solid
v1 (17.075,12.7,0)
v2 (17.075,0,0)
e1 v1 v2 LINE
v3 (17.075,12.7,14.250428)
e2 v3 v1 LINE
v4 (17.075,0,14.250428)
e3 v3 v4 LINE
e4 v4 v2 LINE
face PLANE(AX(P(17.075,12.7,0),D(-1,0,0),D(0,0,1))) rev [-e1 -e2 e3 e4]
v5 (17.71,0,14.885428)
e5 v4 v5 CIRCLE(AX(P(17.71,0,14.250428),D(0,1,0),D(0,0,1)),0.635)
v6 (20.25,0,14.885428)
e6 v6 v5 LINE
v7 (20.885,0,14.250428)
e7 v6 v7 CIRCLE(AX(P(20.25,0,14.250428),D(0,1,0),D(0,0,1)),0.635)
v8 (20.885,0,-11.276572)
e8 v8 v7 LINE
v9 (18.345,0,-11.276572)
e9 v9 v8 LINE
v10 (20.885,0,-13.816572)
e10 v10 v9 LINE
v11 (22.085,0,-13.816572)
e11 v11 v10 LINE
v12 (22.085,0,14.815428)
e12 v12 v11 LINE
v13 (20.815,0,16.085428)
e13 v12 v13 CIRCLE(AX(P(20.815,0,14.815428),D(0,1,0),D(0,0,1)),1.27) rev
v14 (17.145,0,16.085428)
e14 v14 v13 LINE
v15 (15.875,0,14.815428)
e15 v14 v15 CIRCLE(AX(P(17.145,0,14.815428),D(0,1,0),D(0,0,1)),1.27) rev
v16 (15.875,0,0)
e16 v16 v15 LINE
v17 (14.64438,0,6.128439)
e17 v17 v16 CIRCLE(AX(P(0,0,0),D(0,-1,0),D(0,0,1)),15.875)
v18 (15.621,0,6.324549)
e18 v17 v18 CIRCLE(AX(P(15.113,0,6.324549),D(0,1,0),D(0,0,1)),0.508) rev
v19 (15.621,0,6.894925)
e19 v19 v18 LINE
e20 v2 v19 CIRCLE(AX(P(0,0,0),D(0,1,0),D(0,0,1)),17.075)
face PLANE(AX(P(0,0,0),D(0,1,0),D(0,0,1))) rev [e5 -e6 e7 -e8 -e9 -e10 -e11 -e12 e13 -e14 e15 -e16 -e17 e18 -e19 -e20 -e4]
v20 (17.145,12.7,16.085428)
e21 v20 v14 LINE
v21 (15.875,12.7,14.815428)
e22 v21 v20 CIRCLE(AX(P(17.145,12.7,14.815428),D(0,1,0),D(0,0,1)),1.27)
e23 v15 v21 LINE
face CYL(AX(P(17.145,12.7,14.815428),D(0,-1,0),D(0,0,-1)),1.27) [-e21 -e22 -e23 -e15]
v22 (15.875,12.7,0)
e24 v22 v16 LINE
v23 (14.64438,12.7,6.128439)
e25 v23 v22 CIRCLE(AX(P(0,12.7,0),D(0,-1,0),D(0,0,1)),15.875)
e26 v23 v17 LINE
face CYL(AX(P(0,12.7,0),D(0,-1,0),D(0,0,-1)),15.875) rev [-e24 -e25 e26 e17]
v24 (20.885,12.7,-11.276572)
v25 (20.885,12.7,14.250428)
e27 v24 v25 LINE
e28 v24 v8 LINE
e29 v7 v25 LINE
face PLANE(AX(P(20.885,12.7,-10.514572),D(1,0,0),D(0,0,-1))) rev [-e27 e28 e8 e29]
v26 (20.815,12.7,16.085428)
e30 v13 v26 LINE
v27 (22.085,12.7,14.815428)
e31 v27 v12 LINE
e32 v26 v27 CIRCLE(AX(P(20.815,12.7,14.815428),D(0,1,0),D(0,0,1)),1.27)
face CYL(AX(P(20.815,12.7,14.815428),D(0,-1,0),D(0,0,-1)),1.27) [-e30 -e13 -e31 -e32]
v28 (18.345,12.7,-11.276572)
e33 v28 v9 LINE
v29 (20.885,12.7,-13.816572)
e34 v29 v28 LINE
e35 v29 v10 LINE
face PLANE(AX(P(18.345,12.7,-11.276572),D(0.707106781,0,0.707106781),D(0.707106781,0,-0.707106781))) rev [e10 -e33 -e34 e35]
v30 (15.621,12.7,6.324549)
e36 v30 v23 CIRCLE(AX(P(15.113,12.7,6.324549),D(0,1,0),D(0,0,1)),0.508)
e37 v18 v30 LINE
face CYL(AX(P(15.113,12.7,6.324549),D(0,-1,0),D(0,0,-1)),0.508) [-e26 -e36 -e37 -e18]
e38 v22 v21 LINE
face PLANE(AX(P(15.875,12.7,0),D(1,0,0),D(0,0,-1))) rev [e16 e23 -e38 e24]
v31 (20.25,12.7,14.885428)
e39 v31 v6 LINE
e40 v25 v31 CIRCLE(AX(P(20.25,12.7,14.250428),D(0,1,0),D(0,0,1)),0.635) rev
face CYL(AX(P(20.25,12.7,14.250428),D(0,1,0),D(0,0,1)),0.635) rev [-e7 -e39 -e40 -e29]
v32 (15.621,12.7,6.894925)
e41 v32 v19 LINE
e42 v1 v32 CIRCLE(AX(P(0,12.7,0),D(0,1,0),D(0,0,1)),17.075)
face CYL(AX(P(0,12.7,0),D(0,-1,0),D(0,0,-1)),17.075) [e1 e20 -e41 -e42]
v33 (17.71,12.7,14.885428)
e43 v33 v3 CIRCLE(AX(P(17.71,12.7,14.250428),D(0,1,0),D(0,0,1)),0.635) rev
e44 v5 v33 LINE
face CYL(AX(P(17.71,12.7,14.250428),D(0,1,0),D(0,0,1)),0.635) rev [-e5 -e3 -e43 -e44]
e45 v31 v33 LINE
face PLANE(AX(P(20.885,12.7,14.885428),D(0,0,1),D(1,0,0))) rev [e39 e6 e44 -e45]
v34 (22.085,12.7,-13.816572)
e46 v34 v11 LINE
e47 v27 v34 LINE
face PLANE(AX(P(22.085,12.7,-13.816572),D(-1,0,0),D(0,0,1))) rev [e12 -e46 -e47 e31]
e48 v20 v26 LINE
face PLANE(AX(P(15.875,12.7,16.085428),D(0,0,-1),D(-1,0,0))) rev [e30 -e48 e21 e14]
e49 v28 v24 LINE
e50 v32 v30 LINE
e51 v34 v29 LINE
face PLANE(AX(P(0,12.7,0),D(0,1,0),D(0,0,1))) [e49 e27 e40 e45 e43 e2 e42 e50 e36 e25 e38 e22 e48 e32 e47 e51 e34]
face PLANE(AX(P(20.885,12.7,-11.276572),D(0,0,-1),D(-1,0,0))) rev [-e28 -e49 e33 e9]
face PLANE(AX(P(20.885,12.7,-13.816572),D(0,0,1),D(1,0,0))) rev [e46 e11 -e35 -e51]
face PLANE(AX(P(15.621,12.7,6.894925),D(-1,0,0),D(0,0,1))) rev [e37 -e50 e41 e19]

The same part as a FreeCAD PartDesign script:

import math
import FreeCAD as App
import Part
import Sketcher
Q = App.Units.Quantity


def edges_at(feature, points):
    """Names of the edges that pass closest to the given points."""
    edges = feature.Shape.Edges
    near = lambda p: min(range(len(edges)), key=lambda i: edges[i].distToShape(Part.Vertex(*p))[0])
    return sorted({f"Edge{near(p) + 1}" for p in points})

doc = App.newDocument("Part")
params = doc.addObject("Spreadsheet::Sheet", "Params")
for row, (alias, value) in enumerate([
    ("sketch1_width", "0.1 in"),
    ("sketch1_radius", "0.625 in"),
    ("sketch1_width2", "0.15 in"),
    ("sketch1_height", "1.03 in"),
    ("pad1_length", "0.5 in"),
    ("fillet_radius", "0.025 in"),
    ("fillet2_radius", "0.05 in"),
    ("fillet3_radius", "0.02 in"),
], start=1):
    params.set(f"A{row}", alias)
    params.set(f"B{row}", "=" + value)
    params.setAlias(f"B{row}", alias)

body = doc.addObject("PartDesign::Body", "Body")

# Sketch on XZ plane
sketch1 = doc.addObject("Sketcher::SketchObject", "Sketch")
body.addObject(sketch1)
sketch1.AttachmentSupport = (doc.XZ_Plane, [""])
sketch1.MapMode = "FlatFace"
sketch1.addGeometry([
    Part.LineSegment(App.Vector(17.1, 14.9, 0), App.Vector(17.1, 0, 0)),  # 0
    Part.ArcOfCircle(Part.Circle(App.Vector(0, 0, 0), App.Vector(0, 0, 1), 17.1), math.radians(24), math.radians(360)),  # 1
    Part.LineSegment(App.Vector(15.6, 6.9, 0), App.Vector(15.6, 2.8, 0)),  # 2
    Part.ArcOfCircle(Part.Circle(App.Vector(0, 0, 0), App.Vector(0, 0, 1), 15.9), math.radians(10), math.radians(360)),  # 3
    Part.LineSegment(App.Vector(15.9, 0, 0), App.Vector(15.9, 16.1, 0)),  # 4
    Part.LineSegment(App.Vector(15.9, 16.1, 0), App.Vector(22.1, 16.1, 0)),  # 5
    Part.LineSegment(App.Vector(22.1, 16.1, 0), App.Vector(22.1, -13.8, 0)),  # 6
    Part.LineSegment(App.Vector(22.1, -13.8, 0), App.Vector(20.9, -13.8, 0)),  # 7
    Part.LineSegment(App.Vector(20.9, -13.8, 0), App.Vector(18.3, -11.3, 0)),  # 8
    Part.LineSegment(App.Vector(18.3, -11.3, 0), App.Vector(20.9, -11.3, 0)),  # 9
    Part.LineSegment(App.Vector(20.9, -11.3, 0), App.Vector(20.9, 14.9, 0)),  # 10
    Part.LineSegment(App.Vector(20.9, 14.9, 0), App.Vector(17.1, 14.9, 0)),  # 11
], False)
sketch1.addConstraint([
    Sketcher.Constraint("Tangent", 0, 2, 1, 2),
    Sketcher.Constraint("Coincident", 1, 1, 2, 1),
    Sketcher.Constraint("Coincident", 2, 2, 3, 1),
    Sketcher.Constraint("Tangent", 3, 2, 4, 1),
    Sketcher.Constraint("Coincident", 4, 2, 5, 1),
    Sketcher.Constraint("Coincident", 5, 2, 6, 1),
    Sketcher.Constraint("Coincident", 6, 2, 7, 1),
    Sketcher.Constraint("Coincident", 7, 2, 8, 1),
    Sketcher.Constraint("Coincident", 8, 2, 9, 1),
    Sketcher.Constraint("Coincident", 9, 2, 10, 1),
    Sketcher.Constraint("Coincident", 10, 2, 11, 1),
    Sketcher.Constraint("Coincident", 11, 2, 0, 1),
    Sketcher.Constraint("Vertical", 0),
    Sketcher.Constraint("Vertical", 2),
    Sketcher.Constraint("Vertical", 4),
    Sketcher.Constraint("Horizontal", 5),
    Sketcher.Constraint("Vertical", 6),
    Sketcher.Constraint("Horizontal", 7),
    Sketcher.Constraint("Horizontal", 9),
    Sketcher.Constraint("Vertical", 10),
    Sketcher.Constraint("Horizontal", 11),
    Sketcher.Constraint("Coincident", 1, 3, -1, 1),
    Sketcher.Constraint("Coincident", 3, 3, -1, 1),
    Sketcher.Constraint("Vertical", 7, 2, 9, 2),
    Sketcher.Constraint("DistanceX", 9, 1, 9, 2, Q("0.1 in")),
    Sketcher.Constraint("Angle", 8, Q("135 deg")),
    Sketcher.Constraint("Radius", 3, Q("0.625 in")),
    Sketcher.Constraint("DistanceX", 11, 2, 11, 1, Q("0.15 in")),
    Sketcher.Constraint("DistanceY", 10, 1, 10, 2, Q("1.03 in")),
    Sketcher.Constraint("Radius", 1, 17.075),
    Sketcher.Constraint("DistanceX", 2, 2, 3, 2, Q("0.01 in")),
    Sketcher.Constraint("DistanceX", 5, 1, 5, 2, 6.21),
    Sketcher.Constraint("DistanceY", 6, 2, 6, 1, 29.902),
    Sketcher.Constraint("DistanceY", 0, 2, 0, 1, 14.885428),
])
sketch1.setExpression("Constraints[24]", "Params.sketch1_width")
sketch1.setExpression("Constraints[26]", "Params.sketch1_radius")
sketch1.setExpression("Constraints[27]", "Params.sketch1_width2")
sketch1.setExpression("Constraints[28]", "Params.sketch1_height")
pad1 = doc.addObject("PartDesign::Pad", "Pad")
body.addObject(pad1)
pad1.Profile = sketch1
pad1.setExpression("Length", "Params.pad1_length")
pad1.Reversed = True
doc.recompute()

fillet = doc.addObject("PartDesign::Fillet", "Fillet")
body.addObject(fillet)
fillet.Base = (pad1, edges_at(pad1, [(17.075, 6.35, 14.885), (20.885, 6.35, 14.885)]))
fillet.setExpression("Radius", "Params.fillet_radius")
doc.recompute()

fillet2 = doc.addObject("PartDesign::Fillet", "Fillet001")
body.addObject(fillet2)
fillet2.Base = (fillet, edges_at(fillet, [(22.085, 6.35, 16.085), (15.875, 6.35, 16.085)]))
fillet2.setExpression("Radius", "Params.fillet2_radius")
doc.recompute()

fillet3 = doc.addObject("PartDesign::Fillet", "Fillet002")
body.addObject(fillet3)
fillet3.Base = (fillet2, edges_at(fillet2, [(15.621, 6.35, 2.828)]))
fillet3.setExpression("Radius", "Params.fillet3_radius")

doc.recompute()
